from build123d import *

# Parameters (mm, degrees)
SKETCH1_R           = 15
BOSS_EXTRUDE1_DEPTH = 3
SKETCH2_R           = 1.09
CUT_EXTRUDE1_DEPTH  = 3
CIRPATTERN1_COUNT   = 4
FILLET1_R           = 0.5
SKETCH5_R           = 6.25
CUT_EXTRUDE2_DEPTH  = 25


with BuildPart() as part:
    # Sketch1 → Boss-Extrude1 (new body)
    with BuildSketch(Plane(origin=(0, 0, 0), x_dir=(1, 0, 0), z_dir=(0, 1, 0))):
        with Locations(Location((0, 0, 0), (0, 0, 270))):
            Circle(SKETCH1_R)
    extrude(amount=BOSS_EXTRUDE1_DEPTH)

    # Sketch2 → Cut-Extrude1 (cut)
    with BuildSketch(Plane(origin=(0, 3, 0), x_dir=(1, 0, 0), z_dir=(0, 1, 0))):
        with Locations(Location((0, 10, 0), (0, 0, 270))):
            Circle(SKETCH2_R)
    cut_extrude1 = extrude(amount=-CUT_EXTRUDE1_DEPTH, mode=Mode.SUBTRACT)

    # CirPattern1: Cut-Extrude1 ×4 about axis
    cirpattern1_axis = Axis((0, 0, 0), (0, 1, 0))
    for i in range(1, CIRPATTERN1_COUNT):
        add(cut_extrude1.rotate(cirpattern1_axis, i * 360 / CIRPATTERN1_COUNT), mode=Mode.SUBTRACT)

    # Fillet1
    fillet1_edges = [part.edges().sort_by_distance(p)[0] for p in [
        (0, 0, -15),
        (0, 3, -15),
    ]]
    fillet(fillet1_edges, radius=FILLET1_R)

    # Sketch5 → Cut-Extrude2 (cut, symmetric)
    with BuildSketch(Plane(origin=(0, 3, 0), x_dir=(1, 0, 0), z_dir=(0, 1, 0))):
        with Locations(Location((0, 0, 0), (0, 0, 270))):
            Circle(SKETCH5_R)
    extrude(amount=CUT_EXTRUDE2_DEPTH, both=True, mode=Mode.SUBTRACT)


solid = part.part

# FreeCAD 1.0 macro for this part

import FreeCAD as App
import Part
import Sketcher
Q = App.Units.Quantity


def edges_at(feature, points):
    """Names of the edges that pass closest to the given points."""
    edges = feature.Shape.Edges
    near = lambda p: min(range(len(edges)), key=lambda i: edges[i].distToShape(Part.Vertex(*p))[0])
    return sorted({f"Edge{near(p) + 1}" for p in points})

doc = App.newDocument("Part")
params = doc.addObject("Spreadsheet::Sheet", "Params")
for row, (alias, value) in enumerate([
    ("sketch1_diameter", "30 mm"),
    ("pad1_length", "3 mm"),
    ("sketch2_diameter", "2.18 mm"),
    ("pocket1_length", "3 mm"),
    ("fillet_radius", "0.5 mm"),
    ("sketch3_diameter", "12.5 mm"),
    ("pocket2_length", "50 mm"),
], start=1):
    params.set(f"A{row}", alias)
    params.set(f"B{row}", "=" + value)
    params.setAlias(f"B{row}", alias)

body = doc.addObject("PartDesign::Body", "Body")

# Sketch on XZ plane
sketch1 = doc.addObject("Sketcher::SketchObject", "Sketch")
body.addObject(sketch1)
sketch1.AttachmentSupport = (doc.XZ_Plane, [""])
sketch1.MapMode = "FlatFace"
sketch1.addGeometry(Part.Circle(App.Vector(0, 0, 0), App.Vector(0, 0, 1), 15), False)
sketch1.addConstraint([
    Sketcher.Constraint("Coincident", 0, 3, -1, 1),
    Sketcher.Constraint("Diameter", 0, Q("30 mm")),
])
sketch1.setExpression("Constraints[1]", "Params.sketch1_diameter")
pad1 = doc.addObject("PartDesign::Pad", "Pad")
body.addObject(pad1)
pad1.Profile = sketch1
pad1.setExpression("Length", "Params.pad1_length")
pad1.Reversed = True

# Sketch on XZ plane
sketch2 = doc.addObject("Sketcher::SketchObject", "Sketch001")
body.addObject(sketch2)
sketch2.AttachmentSupport = (doc.XZ_Plane, [""])
sketch2.MapMode = "FlatFace"
sketch2.AttachmentOffset = App.Placement(App.Vector(0, 0, -3), App.Rotation())
sketch2.addGeometry(Part.Circle(App.Vector(0, -10, 0), App.Vector(0, 0, 1), 1.1), False)
sketch2.addConstraint([
    Sketcher.Constraint("PointOnObject", 0, 3, -2),
    Sketcher.Constraint("Diameter", 0, Q("2.18 mm")),
    Sketcher.Constraint("DistanceY", 0, 3, -1, 1, Q("10 mm")),
])
sketch2.setExpression("Constraints[1]", "Params.sketch2_diameter")
pocket1 = doc.addObject("PartDesign::Pocket", "Pocket")
body.addObject(pocket1)
pocket1.Profile = sketch2
pocket1.setExpression("Length", "Params.pocket1_length")
pocket1.Reversed = True
doc.recompute()

polarpattern = doc.addObject("PartDesign::PolarPattern", "PolarPattern")
body.addObject(polarpattern)
polarpattern.Originals = [pocket1]
polarpattern.Axis = (doc.Y_Axis, [""])
polarpattern.Angle = 360
polarpattern.Occurrences = 4
body.Tip = polarpattern
doc.recompute()

fillet = doc.addObject("PartDesign::Fillet", "Fillet")
body.addObject(fillet)
fillet.Base = (polarpattern, edges_at(polarpattern, [(0, 0, -15), (0, 3, -15)]))
fillet.setExpression("Radius", "Params.fillet_radius")

# Sketch on XZ plane
sketch3 = doc.addObject("Sketcher::SketchObject", "Sketch002")
body.addObject(sketch3)
sketch3.AttachmentSupport = (doc.XZ_Plane, [""])
sketch3.MapMode = "FlatFace"
sketch3.AttachmentOffset = App.Placement(App.Vector(0, 0, -3), App.Rotation())
sketch3.addGeometry(Part.Circle(App.Vector(0, 0, 0), App.Vector(0, 0, 1), 6), False)
sketch3.addConstraint([
    Sketcher.Constraint("Coincident", 0, 3, -1, 1),
    Sketcher.Constraint("Diameter", 0, Q("12.5 mm")),
])
sketch3.setExpression("Constraints[1]", "Params.sketch3_diameter")
pocket2 = doc.addObject("PartDesign::Pocket", "Pocket001")
body.addObject(pocket2)
pocket2.Profile = sketch3
pocket2.setExpression("Length", "Params.pocket2_length")
pocket2.Midplane = True

doc.recompute()
